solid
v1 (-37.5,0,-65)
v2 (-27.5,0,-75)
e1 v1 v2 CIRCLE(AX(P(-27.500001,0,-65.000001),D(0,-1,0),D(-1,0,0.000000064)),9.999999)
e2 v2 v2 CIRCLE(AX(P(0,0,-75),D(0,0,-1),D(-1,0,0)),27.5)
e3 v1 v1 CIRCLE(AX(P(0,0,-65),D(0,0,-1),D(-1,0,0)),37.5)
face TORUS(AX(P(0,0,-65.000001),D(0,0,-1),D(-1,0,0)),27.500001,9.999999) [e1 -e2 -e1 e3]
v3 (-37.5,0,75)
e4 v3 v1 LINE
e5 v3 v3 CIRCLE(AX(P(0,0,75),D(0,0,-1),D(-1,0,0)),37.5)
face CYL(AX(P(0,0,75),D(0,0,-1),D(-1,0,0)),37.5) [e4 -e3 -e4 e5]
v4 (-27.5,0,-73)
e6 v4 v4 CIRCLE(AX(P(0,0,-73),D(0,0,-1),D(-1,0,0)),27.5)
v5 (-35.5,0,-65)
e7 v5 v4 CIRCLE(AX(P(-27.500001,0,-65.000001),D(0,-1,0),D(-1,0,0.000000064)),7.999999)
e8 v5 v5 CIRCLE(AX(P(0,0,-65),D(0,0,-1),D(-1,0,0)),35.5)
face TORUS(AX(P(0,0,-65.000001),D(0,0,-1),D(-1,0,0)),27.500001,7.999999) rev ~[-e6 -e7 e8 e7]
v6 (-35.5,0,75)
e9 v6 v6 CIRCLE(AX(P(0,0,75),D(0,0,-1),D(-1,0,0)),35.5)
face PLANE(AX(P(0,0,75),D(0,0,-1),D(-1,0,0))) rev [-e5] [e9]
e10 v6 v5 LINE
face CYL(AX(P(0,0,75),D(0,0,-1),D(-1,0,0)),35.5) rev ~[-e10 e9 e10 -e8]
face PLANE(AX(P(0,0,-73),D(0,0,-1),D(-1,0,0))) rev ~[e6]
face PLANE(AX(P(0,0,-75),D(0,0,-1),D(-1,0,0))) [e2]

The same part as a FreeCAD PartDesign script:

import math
import FreeCAD as App
import Part
import Sketcher

V = App.Vector
Q = App.Units.Quantity


def faces_at(feature, points):
    """Names of the faces that lie closest to the given points."""
    faces = feature.Shape.Faces
    near = lambda p: min(range(len(faces)), key=lambda i: faces[i].distToShape(Part.Vertex(*p))[0])
    return sorted({f"Face{near(p) + 1}" for p in points})

doc = App.newDocument("Part")
body = doc.addObject("PartDesign::Body", "Body")

sketch1 = body.newObject("Sketcher::SketchObject", "Sketch")
sketch1.AttachmentSupport = (doc.getObject("XZ_Plane"), [""])
sketch1.MapMode = "FlatFace"
sketch1.addGeometry(Part.LineSegment(V(0, 75, 0), V(-37.5, 75, 0)), False)
sketch1.addGeometry(Part.LineSegment(V(-37.5, 75, 0), V(-37.5, -65, 0)), False)
sketch1.addGeometry(Part.ArcOfCircle(Part.Circle(V(-27.500001, -65.000001, 0), V(0, 0, 1), 9.999999), math.radians(179.999996), math.radians(270.000004)), False)
sketch1.addGeometry(Part.LineSegment(V(-27.5, -75, 0), V(0, -75, 0)), False)
sketch1.addGeometry(Part.LineSegment(V(0, -75, 0), V(0, 75, 0)), False)
sketch1.addConstraint(Sketcher.Constraint("Coincident", 0, 2, 1, 1))
sketch1.addConstraint(Sketcher.Constraint("Tangent", 1, 2, 2, 1))
sketch1.addConstraint(Sketcher.Constraint("Tangent", 2, 2, 3, 1))
sketch1.addConstraint(Sketcher.Constraint("Coincident", 3, 2, 4, 1))
sketch1.addConstraint(Sketcher.Constraint("Coincident", 4, 2, 0, 1))
sketch1.addConstraint(Sketcher.Constraint("Horizontal", 0))
sketch1.addConstraint(Sketcher.Constraint("Vertical", 1))
sketch1.addConstraint(Sketcher.Constraint("Horizontal", 3))
sketch1.addConstraint(Sketcher.Constraint("Vertical", 4))
sketch1.addConstraint(Sketcher.Constraint("Symmetric", 3, 2, 4, 2, -1, 1))
sketch1.addConstraint(Sketcher.Constraint("Radius", 2, Q("9.999999 mm")))
sketch1.addConstraint(Sketcher.Constraint("DistanceY", 1, 2, 1, 1, Q("140 mm")))
sketch1.addConstraint(Sketcher.Constraint("DistanceX", 0, 2, 0, 1, Q("37.5 mm")))
revolution = body.newObject("PartDesign::Revolution", "Revolution")
revolution.Profile = sketch1
revolution.ReferenceAxis = (sketch1, ["V_Axis"])
revolution.Angle = 360
doc.recompute()

thickness = body.newObject("PartDesign::Thickness", "Thickness")
thickness.Base = (revolution, faces_at(revolution, [(0, 0, 75)]))
thickness.Value = 2
thickness.Reversed = True
thickness.Join = "Arc"

doc.recompute()
